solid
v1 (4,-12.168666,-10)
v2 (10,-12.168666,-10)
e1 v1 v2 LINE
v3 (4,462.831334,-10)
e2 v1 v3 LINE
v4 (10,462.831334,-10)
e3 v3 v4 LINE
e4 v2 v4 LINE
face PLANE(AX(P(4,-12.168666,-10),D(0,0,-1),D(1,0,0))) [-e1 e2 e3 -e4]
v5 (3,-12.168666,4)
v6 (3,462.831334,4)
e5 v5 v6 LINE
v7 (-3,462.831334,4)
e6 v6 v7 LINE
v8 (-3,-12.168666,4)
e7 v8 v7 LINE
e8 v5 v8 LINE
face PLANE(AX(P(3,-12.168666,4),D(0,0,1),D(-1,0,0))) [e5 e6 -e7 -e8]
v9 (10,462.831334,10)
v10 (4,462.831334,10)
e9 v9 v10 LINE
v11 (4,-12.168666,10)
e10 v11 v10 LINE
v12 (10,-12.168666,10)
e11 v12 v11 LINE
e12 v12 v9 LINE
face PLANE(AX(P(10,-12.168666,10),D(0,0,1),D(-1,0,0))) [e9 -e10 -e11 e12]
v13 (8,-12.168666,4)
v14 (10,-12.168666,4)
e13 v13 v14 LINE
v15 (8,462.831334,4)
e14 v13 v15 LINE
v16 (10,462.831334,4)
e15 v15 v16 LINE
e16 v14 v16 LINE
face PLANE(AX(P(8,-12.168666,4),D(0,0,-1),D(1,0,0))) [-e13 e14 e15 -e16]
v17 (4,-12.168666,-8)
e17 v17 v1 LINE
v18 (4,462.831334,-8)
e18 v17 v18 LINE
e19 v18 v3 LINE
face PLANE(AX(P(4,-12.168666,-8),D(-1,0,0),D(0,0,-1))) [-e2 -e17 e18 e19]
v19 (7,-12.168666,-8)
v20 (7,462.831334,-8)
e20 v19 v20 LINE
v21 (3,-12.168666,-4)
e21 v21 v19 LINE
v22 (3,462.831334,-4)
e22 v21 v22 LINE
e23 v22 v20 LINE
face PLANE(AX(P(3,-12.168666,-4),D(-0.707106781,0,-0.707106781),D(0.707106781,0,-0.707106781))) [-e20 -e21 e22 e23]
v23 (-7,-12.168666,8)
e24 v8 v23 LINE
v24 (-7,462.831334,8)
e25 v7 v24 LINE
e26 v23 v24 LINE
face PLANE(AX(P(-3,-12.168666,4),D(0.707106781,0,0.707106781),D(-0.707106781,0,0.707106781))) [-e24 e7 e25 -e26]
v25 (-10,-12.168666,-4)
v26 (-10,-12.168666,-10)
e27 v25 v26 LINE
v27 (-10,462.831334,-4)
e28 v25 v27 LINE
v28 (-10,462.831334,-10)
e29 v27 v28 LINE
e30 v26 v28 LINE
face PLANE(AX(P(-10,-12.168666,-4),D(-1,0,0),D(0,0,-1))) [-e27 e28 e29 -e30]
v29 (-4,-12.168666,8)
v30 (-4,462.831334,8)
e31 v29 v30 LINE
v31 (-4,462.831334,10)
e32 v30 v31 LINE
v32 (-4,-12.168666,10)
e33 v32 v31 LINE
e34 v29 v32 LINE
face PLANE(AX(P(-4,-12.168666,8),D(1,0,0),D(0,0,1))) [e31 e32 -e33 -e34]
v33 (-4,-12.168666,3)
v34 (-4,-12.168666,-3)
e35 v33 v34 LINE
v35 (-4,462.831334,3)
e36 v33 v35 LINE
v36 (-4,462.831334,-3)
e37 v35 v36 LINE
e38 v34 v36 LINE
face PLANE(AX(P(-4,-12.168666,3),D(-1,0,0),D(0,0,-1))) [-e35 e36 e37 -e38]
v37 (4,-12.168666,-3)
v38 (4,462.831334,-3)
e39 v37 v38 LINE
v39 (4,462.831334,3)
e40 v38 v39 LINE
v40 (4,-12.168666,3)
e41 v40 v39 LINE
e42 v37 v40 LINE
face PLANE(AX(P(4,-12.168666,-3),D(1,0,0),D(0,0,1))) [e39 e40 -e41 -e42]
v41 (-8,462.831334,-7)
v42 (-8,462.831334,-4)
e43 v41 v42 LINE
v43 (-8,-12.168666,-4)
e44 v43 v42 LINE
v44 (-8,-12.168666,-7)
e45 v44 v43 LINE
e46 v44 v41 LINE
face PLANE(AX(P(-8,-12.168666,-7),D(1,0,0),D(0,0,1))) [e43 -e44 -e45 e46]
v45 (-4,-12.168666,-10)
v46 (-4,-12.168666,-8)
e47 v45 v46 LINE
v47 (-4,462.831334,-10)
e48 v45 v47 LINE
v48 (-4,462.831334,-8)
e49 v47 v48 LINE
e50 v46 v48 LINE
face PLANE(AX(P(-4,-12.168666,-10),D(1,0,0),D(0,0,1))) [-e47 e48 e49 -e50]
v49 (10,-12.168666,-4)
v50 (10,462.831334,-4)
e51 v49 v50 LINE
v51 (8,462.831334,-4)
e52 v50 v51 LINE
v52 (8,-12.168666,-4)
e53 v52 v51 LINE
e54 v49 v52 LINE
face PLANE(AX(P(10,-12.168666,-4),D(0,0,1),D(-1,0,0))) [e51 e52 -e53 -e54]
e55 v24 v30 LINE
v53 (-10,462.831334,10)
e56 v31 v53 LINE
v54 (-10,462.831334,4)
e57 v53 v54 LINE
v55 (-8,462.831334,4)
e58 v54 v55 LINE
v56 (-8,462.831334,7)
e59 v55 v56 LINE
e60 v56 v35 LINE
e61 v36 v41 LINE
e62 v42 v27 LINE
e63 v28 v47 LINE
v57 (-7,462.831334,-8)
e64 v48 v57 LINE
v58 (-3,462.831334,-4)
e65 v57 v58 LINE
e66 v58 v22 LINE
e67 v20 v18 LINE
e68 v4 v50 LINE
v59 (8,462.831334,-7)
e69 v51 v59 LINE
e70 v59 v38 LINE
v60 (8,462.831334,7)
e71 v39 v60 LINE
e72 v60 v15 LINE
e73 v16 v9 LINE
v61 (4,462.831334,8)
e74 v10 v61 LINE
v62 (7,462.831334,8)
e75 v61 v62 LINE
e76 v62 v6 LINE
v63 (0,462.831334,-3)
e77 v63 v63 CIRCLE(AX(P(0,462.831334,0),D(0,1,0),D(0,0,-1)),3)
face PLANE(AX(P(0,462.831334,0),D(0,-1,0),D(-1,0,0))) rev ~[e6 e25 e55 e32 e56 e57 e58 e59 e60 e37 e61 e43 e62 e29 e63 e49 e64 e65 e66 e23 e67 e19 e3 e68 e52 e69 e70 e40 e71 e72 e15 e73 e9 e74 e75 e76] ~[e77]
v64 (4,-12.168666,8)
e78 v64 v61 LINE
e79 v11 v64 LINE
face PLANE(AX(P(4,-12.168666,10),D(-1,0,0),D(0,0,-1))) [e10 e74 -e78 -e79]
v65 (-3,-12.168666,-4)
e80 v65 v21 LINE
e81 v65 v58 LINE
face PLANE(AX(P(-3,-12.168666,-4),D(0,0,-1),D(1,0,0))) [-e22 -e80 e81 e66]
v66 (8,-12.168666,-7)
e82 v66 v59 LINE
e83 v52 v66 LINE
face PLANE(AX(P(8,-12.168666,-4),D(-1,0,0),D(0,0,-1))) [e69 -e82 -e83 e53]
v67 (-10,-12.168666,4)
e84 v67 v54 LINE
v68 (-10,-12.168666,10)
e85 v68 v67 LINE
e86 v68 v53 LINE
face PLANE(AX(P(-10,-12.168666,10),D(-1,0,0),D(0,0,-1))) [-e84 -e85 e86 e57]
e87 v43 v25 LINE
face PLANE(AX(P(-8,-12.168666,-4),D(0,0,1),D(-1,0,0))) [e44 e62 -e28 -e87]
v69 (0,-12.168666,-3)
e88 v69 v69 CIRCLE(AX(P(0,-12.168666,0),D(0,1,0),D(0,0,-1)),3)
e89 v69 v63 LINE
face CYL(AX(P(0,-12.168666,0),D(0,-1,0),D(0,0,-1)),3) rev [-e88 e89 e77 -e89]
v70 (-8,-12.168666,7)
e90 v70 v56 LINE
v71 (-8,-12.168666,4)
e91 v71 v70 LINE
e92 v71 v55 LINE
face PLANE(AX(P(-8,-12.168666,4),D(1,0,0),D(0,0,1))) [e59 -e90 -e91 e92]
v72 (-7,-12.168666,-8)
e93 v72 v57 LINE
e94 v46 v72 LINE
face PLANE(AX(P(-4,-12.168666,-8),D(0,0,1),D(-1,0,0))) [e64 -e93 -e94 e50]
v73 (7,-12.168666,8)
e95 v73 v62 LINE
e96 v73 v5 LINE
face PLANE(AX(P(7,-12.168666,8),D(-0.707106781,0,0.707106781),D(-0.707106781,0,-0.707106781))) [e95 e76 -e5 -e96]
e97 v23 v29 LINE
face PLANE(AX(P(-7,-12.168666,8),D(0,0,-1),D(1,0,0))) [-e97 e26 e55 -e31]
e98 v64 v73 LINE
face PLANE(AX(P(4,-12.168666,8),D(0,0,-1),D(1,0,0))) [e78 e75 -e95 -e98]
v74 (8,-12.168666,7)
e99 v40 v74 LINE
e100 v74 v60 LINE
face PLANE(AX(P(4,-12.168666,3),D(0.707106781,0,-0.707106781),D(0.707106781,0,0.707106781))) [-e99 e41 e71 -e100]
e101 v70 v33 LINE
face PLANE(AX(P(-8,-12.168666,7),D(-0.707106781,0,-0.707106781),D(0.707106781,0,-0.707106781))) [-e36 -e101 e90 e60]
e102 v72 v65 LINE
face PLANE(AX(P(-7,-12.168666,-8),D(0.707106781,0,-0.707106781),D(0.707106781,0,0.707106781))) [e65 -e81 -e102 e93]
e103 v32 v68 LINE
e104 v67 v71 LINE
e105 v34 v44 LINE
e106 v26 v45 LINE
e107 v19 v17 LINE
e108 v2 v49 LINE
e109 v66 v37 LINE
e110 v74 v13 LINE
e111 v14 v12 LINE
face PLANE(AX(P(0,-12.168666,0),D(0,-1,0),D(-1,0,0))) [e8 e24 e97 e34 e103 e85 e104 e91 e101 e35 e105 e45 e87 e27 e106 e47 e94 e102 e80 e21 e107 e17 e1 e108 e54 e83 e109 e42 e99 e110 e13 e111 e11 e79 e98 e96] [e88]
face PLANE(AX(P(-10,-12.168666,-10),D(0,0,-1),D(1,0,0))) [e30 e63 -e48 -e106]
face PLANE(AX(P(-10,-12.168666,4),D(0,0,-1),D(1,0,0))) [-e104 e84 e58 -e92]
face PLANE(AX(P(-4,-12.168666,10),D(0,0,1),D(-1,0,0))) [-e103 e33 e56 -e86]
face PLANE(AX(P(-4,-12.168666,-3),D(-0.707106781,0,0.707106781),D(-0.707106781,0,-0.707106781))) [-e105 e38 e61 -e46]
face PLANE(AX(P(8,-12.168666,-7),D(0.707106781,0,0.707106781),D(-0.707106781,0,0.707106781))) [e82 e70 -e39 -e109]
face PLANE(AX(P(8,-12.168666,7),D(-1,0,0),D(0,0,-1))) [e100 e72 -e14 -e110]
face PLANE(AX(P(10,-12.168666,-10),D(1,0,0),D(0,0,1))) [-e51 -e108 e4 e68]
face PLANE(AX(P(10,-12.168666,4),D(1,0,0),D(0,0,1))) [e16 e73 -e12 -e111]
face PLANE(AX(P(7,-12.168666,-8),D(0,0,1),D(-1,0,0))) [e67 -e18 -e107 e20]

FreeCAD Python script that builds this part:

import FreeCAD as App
import Part
import Sketcher

V = App.Vector


def add_polygon(sketch, points):
    """Adds a closed chain of lines whose ends are joined by coincident constraints."""
    first, n = sketch.GeometryCount, len(points)
    for a, b in zip(points, points[1:] + points[:1]):
        sketch.addGeometry(Part.LineSegment(App.Vector(*a, 0), App.Vector(*b, 0)), False)
    for i in range(n):
        sketch.addConstraint(Sketcher.Constraint("Coincident", first + i, 2, first + (i + 1) % n, 1))

doc = App.newDocument("Part")
body = doc.addObject("PartDesign::Body", "Body")

# Sketch on XZ plane
sketch1 = body.newObject("Sketcher::SketchObject", "Sketch")
sketch1.AttachmentSupport = (doc.getObject("XZ_Plane"), [""])
sketch1.MapMode = "FlatFace"
sketch1.AttachmentOffset = App.Placement(V(0, 0, 12.168666), App.Rotation())
add_polygon(sketch1, [(-4, -8), (-4, -10), (-10, -10), (-10, -4), (-8, -4), (-8, -7), (-4, -3), (-4, 3), (-8, 7), (-8, 4), (-10, 4), (-10, 10), (-4, 10), (-4, 8), (-7, 8), (-3, 4), (3, 4), (7, 8), (4, 8), (4, 10), (10, 10), (10, 4), (8, 4), (8, 7), (4, 3), (4, -3), (8, -7), (8, -4), (10, -4), (10, -10), (4, -10), (4, -8), (7, -8), (3, -4), (-3, -4), (-7, -8)])  # lines 0-35
sketch1.addGeometry(Part.Circle(V(0, 0, 0), V(0, 0, 1), 3), False)  # 36
sketch1.addConstraint([
    Sketcher.Constraint("Vertical", 0),
    Sketcher.Constraint("Horizontal", 1),
    Sketcher.Constraint("Vertical", 2),
    Sketcher.Constraint("Horizontal", 3),
    Sketcher.Constraint("Vertical", 4),
    Sketcher.Constraint("Vertical", 6),
    Sketcher.Constraint("Vertical", 8),
    Sketcher.Constraint("Horizontal", 9),
    Sketcher.Constraint("Vertical", 10),
    Sketcher.Constraint("Horizontal", 11),
    Sketcher.Constraint("Vertical", 12),
    Sketcher.Constraint("Horizontal", 13),
    Sketcher.Constraint("Horizontal", 15),
    Sketcher.Constraint("Horizontal", 17),
    Sketcher.Constraint("Vertical", 18),
    Sketcher.Constraint("Horizontal", 19),
    Sketcher.Constraint("Vertical", 20),
    Sketcher.Constraint("Horizontal", 21),
    Sketcher.Constraint("Vertical", 22),
    Sketcher.Constraint("Vertical", 24),
    Sketcher.Constraint("Vertical", 26),
    Sketcher.Constraint("Horizontal", 27),
    Sketcher.Constraint("Vertical", 28),
    Sketcher.Constraint("Horizontal", 29),
    Sketcher.Constraint("Vertical", 30),
    Sketcher.Constraint("Horizontal", 31),
    Sketcher.Constraint("Horizontal", 33),
    Sketcher.Constraint("Horizontal", 35),
    Sketcher.Constraint("Coincident", 36, 3, -1, 1),
    Sketcher.Constraint("Symmetric", 0, 2, 18, 2, -1, 1),
    Sketcher.Constraint("Symmetric", 2, 2, 20, 2, -1, 1),
    Sketcher.Constraint("Symmetric", 4, 2, 22, 2, -1, 1),
    Sketcher.Constraint("Symmetric", 5, 2, 23, 2, -1, 1),
    Sketcher.Constraint("Symmetric", 7, 2, 25, 2, -1, 1),
    Sketcher.Constraint("Symmetric", 9, 2, 27, 2, -1, 1),
    Sketcher.Constraint("Symmetric", 11, 2, 29, 2, -1, 1),
    Sketcher.Constraint("Symmetric", 13, 2, 31, 2, -1, 1),
    Sketcher.Constraint("Symmetric", 14, 2, 32, 2, -1, 1),
    Sketcher.Constraint("Symmetric", 16, 2, 34, 2, -1, 1),
    Sketcher.Constraint("Symmetric", 13, 2, 16, 2, -2),
    Sketcher.Constraint("Symmetric", 11, 2, 18, 2, -2),
    Sketcher.Constraint("Symmetric", 9, 2, 20, 2, -2),
    Sketcher.Constraint("Symmetric", 7, 2, 22, 2, -2),
    Sketcher.Constraint("Perpendicular", 5, 7),
    Sketcher.Constraint("Parallel", 7, 14),
    Sketcher.Constraint("Perpendicular", 14, 16),
    Sketcher.Constraint("Perpendicular", 23, 25),
    Sketcher.Constraint("Perpendicular", 32, 34),
    Sketcher.Constraint("Horizontal", 9, 2, 14, 2),
    Sketcher.Constraint("Horizontal", 6, 2, 23, 2),
    Sketcher.Constraint("Vertical", 0, 2, 5, 2),
    Sketcher.Constraint("Equal", 11, 15),
    Sketcher.Constraint("Equal", 27, 0),
    Sketcher.Constraint("Equal", 33, 2),
    Sketcher.Constraint("Equal", 35, 4),
    Sketcher.Constraint("Equal", 2, 6),
    Sketcher.Constraint("Diameter", 36, 6.0),
    Sketcher.Constraint("DistanceX", 1, 2, 1, 1, 6.0),
    Sketcher.Constraint("DistanceX", 3, 1, 3, 2, 2.0),
    Sketcher.Constraint("DistanceX", 13, 2, 13, 1, 3.0),
])
pad1 = body.newObject("PartDesign::Pad", "Pad")
pad1.Profile = sketch1
pad1.Length = 475
pad1.Reversed = True

doc.recompute()
